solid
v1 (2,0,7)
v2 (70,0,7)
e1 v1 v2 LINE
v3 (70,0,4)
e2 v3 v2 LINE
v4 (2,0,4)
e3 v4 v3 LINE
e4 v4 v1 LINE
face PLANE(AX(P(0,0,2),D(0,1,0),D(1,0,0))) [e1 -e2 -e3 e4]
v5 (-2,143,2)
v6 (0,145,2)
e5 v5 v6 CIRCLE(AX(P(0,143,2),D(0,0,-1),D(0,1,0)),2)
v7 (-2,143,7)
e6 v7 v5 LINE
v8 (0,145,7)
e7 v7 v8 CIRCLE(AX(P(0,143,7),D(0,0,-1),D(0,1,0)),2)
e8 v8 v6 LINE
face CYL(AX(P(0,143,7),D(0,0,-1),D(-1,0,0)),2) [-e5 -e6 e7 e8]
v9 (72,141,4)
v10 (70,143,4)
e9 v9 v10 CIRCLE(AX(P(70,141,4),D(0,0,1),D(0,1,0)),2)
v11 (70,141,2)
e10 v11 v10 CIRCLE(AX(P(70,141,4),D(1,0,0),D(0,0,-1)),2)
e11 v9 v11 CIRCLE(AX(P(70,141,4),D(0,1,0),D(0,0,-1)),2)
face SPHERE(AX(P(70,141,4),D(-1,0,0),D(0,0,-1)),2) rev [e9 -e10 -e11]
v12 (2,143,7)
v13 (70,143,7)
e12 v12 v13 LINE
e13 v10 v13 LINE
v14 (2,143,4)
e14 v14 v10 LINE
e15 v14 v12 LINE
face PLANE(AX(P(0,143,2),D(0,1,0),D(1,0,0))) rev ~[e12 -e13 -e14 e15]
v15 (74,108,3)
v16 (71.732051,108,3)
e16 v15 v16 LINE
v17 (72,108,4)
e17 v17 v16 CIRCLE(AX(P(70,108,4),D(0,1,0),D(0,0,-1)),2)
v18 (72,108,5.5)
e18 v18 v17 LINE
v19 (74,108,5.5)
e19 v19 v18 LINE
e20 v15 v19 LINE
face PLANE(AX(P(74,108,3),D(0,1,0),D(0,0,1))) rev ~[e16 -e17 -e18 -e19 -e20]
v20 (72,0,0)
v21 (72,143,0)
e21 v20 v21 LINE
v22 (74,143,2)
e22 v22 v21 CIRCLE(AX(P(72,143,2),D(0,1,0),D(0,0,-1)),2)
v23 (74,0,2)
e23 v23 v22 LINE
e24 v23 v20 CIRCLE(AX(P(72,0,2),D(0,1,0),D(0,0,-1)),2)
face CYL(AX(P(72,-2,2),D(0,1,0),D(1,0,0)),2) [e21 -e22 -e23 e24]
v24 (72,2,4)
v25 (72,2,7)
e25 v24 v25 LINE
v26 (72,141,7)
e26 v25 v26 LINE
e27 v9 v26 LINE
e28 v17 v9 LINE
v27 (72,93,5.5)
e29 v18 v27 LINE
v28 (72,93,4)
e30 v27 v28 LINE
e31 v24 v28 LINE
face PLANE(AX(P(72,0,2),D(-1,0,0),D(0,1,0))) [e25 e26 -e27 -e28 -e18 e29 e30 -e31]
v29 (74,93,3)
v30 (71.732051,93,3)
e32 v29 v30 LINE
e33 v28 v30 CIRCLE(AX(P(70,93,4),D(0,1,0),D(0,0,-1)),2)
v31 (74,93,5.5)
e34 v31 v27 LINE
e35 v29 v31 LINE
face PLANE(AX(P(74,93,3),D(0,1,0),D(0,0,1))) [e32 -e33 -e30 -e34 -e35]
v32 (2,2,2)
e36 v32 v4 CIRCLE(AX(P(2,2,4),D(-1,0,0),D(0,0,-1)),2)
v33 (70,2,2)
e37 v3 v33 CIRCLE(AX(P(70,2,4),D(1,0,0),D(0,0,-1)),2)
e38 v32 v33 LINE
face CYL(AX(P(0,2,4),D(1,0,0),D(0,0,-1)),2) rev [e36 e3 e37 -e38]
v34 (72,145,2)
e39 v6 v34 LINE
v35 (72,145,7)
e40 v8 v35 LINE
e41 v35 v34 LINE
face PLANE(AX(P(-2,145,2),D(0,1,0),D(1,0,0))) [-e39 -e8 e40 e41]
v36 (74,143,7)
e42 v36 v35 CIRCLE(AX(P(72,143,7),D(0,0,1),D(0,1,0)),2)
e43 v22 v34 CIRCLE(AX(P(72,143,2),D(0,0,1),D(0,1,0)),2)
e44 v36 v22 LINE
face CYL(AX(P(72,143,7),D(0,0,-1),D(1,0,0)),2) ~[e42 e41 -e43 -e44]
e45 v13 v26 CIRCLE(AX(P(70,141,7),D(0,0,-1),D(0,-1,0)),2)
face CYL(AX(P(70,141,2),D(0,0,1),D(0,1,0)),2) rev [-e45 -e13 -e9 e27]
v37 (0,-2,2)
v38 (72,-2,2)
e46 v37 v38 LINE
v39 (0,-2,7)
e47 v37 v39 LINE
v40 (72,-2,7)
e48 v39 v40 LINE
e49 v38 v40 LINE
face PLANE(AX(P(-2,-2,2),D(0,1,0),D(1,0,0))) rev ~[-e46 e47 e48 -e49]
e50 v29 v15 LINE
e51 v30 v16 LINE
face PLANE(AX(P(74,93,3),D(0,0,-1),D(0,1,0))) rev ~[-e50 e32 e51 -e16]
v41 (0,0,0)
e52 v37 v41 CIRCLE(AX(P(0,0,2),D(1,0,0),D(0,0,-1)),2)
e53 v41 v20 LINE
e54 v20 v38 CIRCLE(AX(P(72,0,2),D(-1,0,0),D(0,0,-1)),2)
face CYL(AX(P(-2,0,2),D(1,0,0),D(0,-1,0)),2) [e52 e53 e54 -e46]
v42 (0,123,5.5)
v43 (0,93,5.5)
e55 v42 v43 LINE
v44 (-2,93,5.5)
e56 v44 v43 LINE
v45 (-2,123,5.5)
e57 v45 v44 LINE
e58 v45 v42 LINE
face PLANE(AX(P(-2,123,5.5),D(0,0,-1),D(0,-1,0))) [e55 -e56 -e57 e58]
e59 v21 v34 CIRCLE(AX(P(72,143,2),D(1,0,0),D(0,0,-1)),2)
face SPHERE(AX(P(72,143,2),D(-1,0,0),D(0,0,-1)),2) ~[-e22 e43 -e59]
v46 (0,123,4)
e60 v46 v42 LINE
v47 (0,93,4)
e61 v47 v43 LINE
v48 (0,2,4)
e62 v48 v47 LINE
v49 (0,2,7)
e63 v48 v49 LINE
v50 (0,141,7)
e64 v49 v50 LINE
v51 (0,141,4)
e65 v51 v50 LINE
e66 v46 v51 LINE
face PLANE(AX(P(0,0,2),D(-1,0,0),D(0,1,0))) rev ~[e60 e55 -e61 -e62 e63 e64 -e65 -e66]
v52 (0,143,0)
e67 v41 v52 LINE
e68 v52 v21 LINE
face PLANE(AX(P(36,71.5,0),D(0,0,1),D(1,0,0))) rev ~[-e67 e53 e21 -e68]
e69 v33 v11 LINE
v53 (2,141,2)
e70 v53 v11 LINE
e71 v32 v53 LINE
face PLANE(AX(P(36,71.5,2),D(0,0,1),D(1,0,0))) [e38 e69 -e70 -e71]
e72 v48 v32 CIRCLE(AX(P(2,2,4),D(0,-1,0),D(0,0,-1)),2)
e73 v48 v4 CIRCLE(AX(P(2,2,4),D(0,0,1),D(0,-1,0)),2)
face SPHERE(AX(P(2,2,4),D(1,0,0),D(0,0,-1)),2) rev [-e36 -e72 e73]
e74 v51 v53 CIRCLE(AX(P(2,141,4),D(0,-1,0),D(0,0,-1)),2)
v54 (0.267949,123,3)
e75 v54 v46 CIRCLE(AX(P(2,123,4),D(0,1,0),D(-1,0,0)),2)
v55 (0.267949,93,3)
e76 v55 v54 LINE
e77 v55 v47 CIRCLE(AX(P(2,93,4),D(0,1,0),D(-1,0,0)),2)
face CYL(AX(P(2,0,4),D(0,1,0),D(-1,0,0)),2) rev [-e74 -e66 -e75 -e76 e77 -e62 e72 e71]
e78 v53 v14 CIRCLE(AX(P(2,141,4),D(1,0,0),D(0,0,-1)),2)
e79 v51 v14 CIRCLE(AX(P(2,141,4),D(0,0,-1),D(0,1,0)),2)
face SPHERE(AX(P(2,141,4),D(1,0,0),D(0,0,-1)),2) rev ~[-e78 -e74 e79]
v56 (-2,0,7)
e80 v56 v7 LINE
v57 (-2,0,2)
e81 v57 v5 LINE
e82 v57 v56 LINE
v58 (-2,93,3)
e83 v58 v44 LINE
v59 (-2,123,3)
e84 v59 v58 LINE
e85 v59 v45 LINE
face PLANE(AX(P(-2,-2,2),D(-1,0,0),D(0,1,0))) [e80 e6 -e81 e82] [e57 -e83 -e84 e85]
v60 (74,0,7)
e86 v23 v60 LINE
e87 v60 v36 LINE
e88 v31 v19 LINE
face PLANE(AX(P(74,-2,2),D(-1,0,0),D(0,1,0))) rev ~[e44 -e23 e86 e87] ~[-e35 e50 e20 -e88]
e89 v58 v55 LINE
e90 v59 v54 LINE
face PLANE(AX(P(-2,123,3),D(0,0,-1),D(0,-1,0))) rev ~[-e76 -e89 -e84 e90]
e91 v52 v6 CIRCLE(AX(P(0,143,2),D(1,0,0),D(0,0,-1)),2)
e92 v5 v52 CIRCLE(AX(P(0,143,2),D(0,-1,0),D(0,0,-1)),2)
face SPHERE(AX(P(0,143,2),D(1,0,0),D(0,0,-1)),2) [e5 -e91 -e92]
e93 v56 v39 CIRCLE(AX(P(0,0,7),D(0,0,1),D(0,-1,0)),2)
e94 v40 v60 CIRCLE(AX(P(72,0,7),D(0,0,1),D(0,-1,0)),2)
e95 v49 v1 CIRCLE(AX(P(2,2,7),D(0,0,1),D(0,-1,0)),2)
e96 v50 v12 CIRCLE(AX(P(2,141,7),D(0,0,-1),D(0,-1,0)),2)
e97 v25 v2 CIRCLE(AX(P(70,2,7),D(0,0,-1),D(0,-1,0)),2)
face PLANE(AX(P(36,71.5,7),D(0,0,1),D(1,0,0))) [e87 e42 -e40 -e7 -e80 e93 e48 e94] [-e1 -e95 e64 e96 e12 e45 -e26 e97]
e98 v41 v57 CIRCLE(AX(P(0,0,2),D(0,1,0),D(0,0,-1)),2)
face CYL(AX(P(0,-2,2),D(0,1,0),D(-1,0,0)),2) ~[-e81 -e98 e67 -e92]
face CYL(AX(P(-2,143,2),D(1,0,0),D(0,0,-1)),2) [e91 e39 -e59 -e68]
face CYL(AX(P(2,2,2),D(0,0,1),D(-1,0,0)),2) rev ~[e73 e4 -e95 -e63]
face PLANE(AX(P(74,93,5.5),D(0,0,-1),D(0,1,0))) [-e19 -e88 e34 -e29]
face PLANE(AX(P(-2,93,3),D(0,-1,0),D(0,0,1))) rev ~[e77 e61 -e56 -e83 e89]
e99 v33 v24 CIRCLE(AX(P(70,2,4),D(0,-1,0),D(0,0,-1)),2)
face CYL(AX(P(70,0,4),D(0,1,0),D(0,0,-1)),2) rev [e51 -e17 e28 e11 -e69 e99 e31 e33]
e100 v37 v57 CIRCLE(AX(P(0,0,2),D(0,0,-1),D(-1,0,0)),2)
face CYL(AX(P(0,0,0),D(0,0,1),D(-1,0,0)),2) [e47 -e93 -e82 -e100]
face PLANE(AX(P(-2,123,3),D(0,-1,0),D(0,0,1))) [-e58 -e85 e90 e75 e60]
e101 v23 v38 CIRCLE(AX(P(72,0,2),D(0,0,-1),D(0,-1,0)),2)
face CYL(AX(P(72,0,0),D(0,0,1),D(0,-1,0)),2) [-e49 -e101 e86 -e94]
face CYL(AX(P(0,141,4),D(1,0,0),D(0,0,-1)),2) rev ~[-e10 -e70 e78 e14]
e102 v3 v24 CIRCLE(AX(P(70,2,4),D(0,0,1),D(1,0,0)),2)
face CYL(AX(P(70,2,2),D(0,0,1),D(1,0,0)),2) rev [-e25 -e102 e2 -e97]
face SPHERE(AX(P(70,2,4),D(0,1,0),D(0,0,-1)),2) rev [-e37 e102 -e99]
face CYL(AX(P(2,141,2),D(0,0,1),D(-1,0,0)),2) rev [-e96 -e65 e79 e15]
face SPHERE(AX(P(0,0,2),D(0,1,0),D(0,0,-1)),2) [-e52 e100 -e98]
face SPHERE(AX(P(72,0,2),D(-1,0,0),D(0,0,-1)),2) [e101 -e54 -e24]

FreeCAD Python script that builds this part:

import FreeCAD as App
import Part
import Sketcher
from FreeCAD import Vector


def edges_at(feature, points):
    """Names of the edges that pass closest to the given points."""
    edges = feature.Shape.Edges
    near = lambda p: min(range(len(edges)), key=lambda i: edges[i].distToShape(Part.Vertex(*p))[0])
    return sorted({f"Edge{near(p) + 1}" for p in points})

doc = App.newDocument("Part")
body = doc.addObject("PartDesign::Body", "Body")

# Sketch on XY plane
sketch1 = body.newObject("Sketcher::SketchObject", "Sketch")
sketch1.AttachmentSupport = (doc.getObject("XY_Plane"), [""])
sketch1.MapMode = "FlatFace"
sketch1.addGeometry(Part.LineSegment(Vector(-2, 145, 0), Vector(-2, -2, 0)), False)
sketch1.addGeometry(Part.LineSegment(Vector(-2, -2, 0), Vector(74, -2, 0)), False)
sketch1.addGeometry(Part.LineSegment(Vector(74, -2, 0), Vector(74, 145, 0)), False)
sketch1.addGeometry(Part.LineSegment(Vector(74, 145, 0), Vector(-2, 145, 0)), False)
sketch1.addConstraint(Sketcher.Constraint("Coincident", 0, 2, 1, 1))
sketch1.addConstraint(Sketcher.Constraint("Coincident", 1, 2, 2, 1))
sketch1.addConstraint(Sketcher.Constraint("Coincident", 2, 2, 3, 1))
sketch1.addConstraint(Sketcher.Constraint("Coincident", 3, 2, 0, 1))
sketch1.addConstraint(Sketcher.Constraint("Vertical", 0))
sketch1.addConstraint(Sketcher.Constraint("Horizontal", 1))
sketch1.addConstraint(Sketcher.Constraint("Vertical", 2))
sketch1.addConstraint(Sketcher.Constraint("Horizontal", 3))
sketch1.addConstraint(Sketcher.Constraint("DistanceX", 1, 1, 1, 2, 76.0))
sketch1.addConstraint(Sketcher.Constraint("DistanceY", 0, 2, 0, 1, 147.0))
sketch1.addConstraint(Sketcher.Constraint("DistanceX", 0, 2, -1, 1, 2.0))
sketch1.addConstraint(Sketcher.Constraint("DistanceY", 0, 2, -1, 1, 2.0))
pad1 = body.newObject("PartDesign::Pad", "Pad")
pad1.Profile = sketch1
pad1.Length = 2

# Sketch on XY plane
sketch2 = body.newObject("Sketcher::SketchObject", "Sketch001")
sketch2.AttachmentSupport = (doc.getObject("XY_Plane"), [""])
sketch2.MapMode = "FlatFace"
sketch2.AttachmentOffset = App.Placement(Vector(0, 0, 2), App.Rotation())
sketch2.addGeometry(Part.LineSegment(Vector(-2, 145, 0), Vector(-2, -2, 0)), False)
sketch2.addGeometry(Part.LineSegment(Vector(-2, -2, 0), Vector(74, -2, 0)), False)
sketch2.addGeometry(Part.LineSegment(Vector(74, -2, 0), Vector(74, 145, 0)), False)
sketch2.addGeometry(Part.LineSegment(Vector(74, 145, 0), Vector(-2, 145, 0)), False)
sketch2.addGeometry(Part.LineSegment(Vector(72, 0, 0), Vector(0, 0, 0)), False)
sketch2.addGeometry(Part.LineSegment(Vector(0, 0, 0), Vector(0, 143, 0)), False)
sketch2.addGeometry(Part.LineSegment(Vector(0, 143, 0), Vector(72, 143, 0)), False)
sketch2.addGeometry(Part.LineSegment(Vector(72, 143, 0), Vector(72, 0, 0)), False)
sketch2.addConstraint(Sketcher.Constraint("Coincident", 0, 2, 1, 1))
sketch2.addConstraint(Sketcher.Constraint("Coincident", 1, 2, 2, 1))
sketch2.addConstraint(Sketcher.Constraint("Coincident", 2, 2, 3, 1))
sketch2.addConstraint(Sketcher.Constraint("Coincident", 3, 2, 0, 1))
sketch2.addConstraint(Sketcher.Constraint("Coincident", 4, 2, 5, 1))
sketch2.addConstraint(Sketcher.Constraint("Coincident", 5, 2, 6, 1))
sketch2.addConstraint(Sketcher.Constraint("Coincident", 6, 2, 7, 1))
sketch2.addConstraint(Sketcher.Constraint("Coincident", 7, 2, 4, 1))
sketch2.addConstraint(Sketcher.Constraint("Vertical", 0))
sketch2.addConstraint(Sketcher.Constraint("Horizontal", 1))
sketch2.addConstraint(Sketcher.Constraint("Vertical", 2))
sketch2.addConstraint(Sketcher.Constraint("Horizontal", 3))
sketch2.addConstraint(Sketcher.Constraint("Horizontal", 4))
sketch2.addConstraint(Sketcher.Constraint("Vertical", 5))
sketch2.addConstraint(Sketcher.Constraint("Horizontal", 6))
sketch2.addConstraint(Sketcher.Constraint("Vertical", 7))
sketch2.addConstraint(Sketcher.Constraint("Coincident", 4, 2, -1, 1))
sketch2.addConstraint(Sketcher.Constraint("DistanceX", 1, 1, 1, 2, 76.0))
sketch2.addConstraint(Sketcher.Constraint("DistanceX", 4, 2, 4, 1, 72.0))
sketch2.addConstraint(Sketcher.Constraint("DistanceY", 0, 2, 0, 1, 147.0))
sketch2.addConstraint(Sketcher.Constraint("DistanceY", 5, 1, 5, 2, 143.0))
sketch2.addConstraint(Sketcher.Constraint("DistanceX", 0, 2, -1, 1, 2.0))
sketch2.addConstraint(Sketcher.Constraint("DistanceY", 0, 2, -1, 1, 2.0))
pad2 = body.newObject("PartDesign::Pad", "Pad001")
pad2.Profile = sketch2
pad2.Length = 5
doc.recompute()

fillet = body.newObject("PartDesign::Fillet", "Fillet")
fillet.Base = (pad2, edges_at(pad2, [
    (36, 143, 2),
    (72, 71.5, 2),
    (36, 0, 2),
    (0, 71.5, 2),
    (36, 145, 0),
    (-2, 71.5, 0),
    (36, -2, 0),
    (74, 71.5, 0),
    (74, -2, 3.5),
    (-2, -2, 3.5),
    (-2, 145, 3.5),
    (74, 145, 3.5),
    (72, 0, 4.5),
    (0, 0, 4.5),
    (0, 143, 4.5),
    (72, 143, 4.5),
]))
fillet.Radius = 2

# Sketch on YZ plane
sketch3 = body.newObject("Sketcher::SketchObject", "Sketch002")
sketch3.AttachmentSupport = (doc.getObject("YZ_Plane"), [""])
sketch3.MapMode = "FlatFace"
sketch3.AttachmentOffset = App.Placement(Vector(0, 0, 74), App.Rotation())
sketch3.addGeometry(Part.LineSegment(Vector(93, 5.5, 0), Vector(93, 3, 0)), False)
sketch3.addGeometry(Part.LineSegment(Vector(93, 3, 0), Vector(108, 3, 0)), False)
sketch3.addGeometry(Part.LineSegment(Vector(108, 3, 0), Vector(108, 5.5, 0)), False)
sketch3.addGeometry(Part.LineSegment(Vector(108, 5.5, 0), Vector(93, 5.5, 0)), False)
sketch3.addConstraint(Sketcher.Constraint("Coincident", 0, 2, 1, 1))
sketch3.addConstraint(Sketcher.Constraint("Coincident", 1, 2, 2, 1))
sketch3.addConstraint(Sketcher.Constraint("Coincident", 2, 2, 3, 1))
sketch3.addConstraint(Sketcher.Constraint("Coincident", 3, 2, 0, 1))
sketch3.addConstraint(Sketcher.Constraint("Vertical", 0))
sketch3.addConstraint(Sketcher.Constraint("Horizontal", 1))
sketch3.addConstraint(Sketcher.Constraint("Vertical", 2))
sketch3.addConstraint(Sketcher.Constraint("Horizontal", 3))
sketch3.addConstraint(Sketcher.Constraint("DistanceX", 1, 1, 1, 2, 15.0))
sketch3.addConstraint(Sketcher.Constraint("DistanceY", 0, 2, 0, 1, 2.5))
sketch3.addConstraint(Sketcher.Constraint("DistanceX", -1, 1, 0, 2, 93.0))
sketch3.addConstraint(Sketcher.Constraint("DistanceY", -1, 1, 0, 2, 3.0))
pocket1 = body.newObject("PartDesign::Pocket", "Pocket")
pocket1.Profile = sketch3
pocket1.Length = 5

# Sketch on YZ plane
sketch4 = body.newObject("Sketcher::SketchObject", "Sketch003")
sketch4.AttachmentSupport = (doc.getObject("YZ_Plane"), [""])
sketch4.MapMode = "FlatFace"
sketch4.AttachmentOffset = App.Placement(Vector(0, 0, -2), App.Rotation())
sketch4.addGeometry(Part.LineSegment(Vector(123, 5.5, 0), Vector(123, 3, 0)), False)
sketch4.addGeometry(Part.LineSegment(Vector(123, 3, 0), Vector(93, 3, 0)), False)
sketch4.addGeometry(Part.LineSegment(Vector(93, 3, 0), Vector(93, 5.5, 0)), False)
sketch4.addGeometry(Part.LineSegment(Vector(93, 5.5, 0), Vector(123, 5.5, 0)), False)
sketch4.addConstraint(Sketcher.Constraint("Coincident", 0, 2, 1, 1))
sketch4.addConstraint(Sketcher.Constraint("Coincident", 1, 2, 2, 1))
sketch4.addConstraint(Sketcher.Constraint("Coincident", 2, 2, 3, 1))
sketch4.addConstraint(Sketcher.Constraint("Coincident", 3, 2, 0, 1))
sketch4.addConstraint(Sketcher.Constraint("Vertical", 0))
sketch4.addConstraint(Sketcher.Constraint("Horizontal", 1))
sketch4.addConstraint(Sketcher.Constraint("Vertical", 2))
sketch4.addConstraint(Sketcher.Constraint("Horizontal", 3))
sketch4.addConstraint(Sketcher.Constraint("DistanceX", 1, 2, 1, 1, 30.0))
sketch4.addConstraint(Sketcher.Constraint("DistanceY", 0, 2, 0, 1, 2.5))
sketch4.addConstraint(Sketcher.Constraint("DistanceX", -1, 1, 0, 2, 123.0))
sketch4.addConstraint(Sketcher.Constraint("DistanceY", -1, 1, 0, 2, 3.0))
pocket2 = body.newObject("PartDesign::Pocket", "Pocket001")
pocket2.Profile = sketch4
pocket2.Length = 25
pocket2.Reversed = True

doc.recompute()
